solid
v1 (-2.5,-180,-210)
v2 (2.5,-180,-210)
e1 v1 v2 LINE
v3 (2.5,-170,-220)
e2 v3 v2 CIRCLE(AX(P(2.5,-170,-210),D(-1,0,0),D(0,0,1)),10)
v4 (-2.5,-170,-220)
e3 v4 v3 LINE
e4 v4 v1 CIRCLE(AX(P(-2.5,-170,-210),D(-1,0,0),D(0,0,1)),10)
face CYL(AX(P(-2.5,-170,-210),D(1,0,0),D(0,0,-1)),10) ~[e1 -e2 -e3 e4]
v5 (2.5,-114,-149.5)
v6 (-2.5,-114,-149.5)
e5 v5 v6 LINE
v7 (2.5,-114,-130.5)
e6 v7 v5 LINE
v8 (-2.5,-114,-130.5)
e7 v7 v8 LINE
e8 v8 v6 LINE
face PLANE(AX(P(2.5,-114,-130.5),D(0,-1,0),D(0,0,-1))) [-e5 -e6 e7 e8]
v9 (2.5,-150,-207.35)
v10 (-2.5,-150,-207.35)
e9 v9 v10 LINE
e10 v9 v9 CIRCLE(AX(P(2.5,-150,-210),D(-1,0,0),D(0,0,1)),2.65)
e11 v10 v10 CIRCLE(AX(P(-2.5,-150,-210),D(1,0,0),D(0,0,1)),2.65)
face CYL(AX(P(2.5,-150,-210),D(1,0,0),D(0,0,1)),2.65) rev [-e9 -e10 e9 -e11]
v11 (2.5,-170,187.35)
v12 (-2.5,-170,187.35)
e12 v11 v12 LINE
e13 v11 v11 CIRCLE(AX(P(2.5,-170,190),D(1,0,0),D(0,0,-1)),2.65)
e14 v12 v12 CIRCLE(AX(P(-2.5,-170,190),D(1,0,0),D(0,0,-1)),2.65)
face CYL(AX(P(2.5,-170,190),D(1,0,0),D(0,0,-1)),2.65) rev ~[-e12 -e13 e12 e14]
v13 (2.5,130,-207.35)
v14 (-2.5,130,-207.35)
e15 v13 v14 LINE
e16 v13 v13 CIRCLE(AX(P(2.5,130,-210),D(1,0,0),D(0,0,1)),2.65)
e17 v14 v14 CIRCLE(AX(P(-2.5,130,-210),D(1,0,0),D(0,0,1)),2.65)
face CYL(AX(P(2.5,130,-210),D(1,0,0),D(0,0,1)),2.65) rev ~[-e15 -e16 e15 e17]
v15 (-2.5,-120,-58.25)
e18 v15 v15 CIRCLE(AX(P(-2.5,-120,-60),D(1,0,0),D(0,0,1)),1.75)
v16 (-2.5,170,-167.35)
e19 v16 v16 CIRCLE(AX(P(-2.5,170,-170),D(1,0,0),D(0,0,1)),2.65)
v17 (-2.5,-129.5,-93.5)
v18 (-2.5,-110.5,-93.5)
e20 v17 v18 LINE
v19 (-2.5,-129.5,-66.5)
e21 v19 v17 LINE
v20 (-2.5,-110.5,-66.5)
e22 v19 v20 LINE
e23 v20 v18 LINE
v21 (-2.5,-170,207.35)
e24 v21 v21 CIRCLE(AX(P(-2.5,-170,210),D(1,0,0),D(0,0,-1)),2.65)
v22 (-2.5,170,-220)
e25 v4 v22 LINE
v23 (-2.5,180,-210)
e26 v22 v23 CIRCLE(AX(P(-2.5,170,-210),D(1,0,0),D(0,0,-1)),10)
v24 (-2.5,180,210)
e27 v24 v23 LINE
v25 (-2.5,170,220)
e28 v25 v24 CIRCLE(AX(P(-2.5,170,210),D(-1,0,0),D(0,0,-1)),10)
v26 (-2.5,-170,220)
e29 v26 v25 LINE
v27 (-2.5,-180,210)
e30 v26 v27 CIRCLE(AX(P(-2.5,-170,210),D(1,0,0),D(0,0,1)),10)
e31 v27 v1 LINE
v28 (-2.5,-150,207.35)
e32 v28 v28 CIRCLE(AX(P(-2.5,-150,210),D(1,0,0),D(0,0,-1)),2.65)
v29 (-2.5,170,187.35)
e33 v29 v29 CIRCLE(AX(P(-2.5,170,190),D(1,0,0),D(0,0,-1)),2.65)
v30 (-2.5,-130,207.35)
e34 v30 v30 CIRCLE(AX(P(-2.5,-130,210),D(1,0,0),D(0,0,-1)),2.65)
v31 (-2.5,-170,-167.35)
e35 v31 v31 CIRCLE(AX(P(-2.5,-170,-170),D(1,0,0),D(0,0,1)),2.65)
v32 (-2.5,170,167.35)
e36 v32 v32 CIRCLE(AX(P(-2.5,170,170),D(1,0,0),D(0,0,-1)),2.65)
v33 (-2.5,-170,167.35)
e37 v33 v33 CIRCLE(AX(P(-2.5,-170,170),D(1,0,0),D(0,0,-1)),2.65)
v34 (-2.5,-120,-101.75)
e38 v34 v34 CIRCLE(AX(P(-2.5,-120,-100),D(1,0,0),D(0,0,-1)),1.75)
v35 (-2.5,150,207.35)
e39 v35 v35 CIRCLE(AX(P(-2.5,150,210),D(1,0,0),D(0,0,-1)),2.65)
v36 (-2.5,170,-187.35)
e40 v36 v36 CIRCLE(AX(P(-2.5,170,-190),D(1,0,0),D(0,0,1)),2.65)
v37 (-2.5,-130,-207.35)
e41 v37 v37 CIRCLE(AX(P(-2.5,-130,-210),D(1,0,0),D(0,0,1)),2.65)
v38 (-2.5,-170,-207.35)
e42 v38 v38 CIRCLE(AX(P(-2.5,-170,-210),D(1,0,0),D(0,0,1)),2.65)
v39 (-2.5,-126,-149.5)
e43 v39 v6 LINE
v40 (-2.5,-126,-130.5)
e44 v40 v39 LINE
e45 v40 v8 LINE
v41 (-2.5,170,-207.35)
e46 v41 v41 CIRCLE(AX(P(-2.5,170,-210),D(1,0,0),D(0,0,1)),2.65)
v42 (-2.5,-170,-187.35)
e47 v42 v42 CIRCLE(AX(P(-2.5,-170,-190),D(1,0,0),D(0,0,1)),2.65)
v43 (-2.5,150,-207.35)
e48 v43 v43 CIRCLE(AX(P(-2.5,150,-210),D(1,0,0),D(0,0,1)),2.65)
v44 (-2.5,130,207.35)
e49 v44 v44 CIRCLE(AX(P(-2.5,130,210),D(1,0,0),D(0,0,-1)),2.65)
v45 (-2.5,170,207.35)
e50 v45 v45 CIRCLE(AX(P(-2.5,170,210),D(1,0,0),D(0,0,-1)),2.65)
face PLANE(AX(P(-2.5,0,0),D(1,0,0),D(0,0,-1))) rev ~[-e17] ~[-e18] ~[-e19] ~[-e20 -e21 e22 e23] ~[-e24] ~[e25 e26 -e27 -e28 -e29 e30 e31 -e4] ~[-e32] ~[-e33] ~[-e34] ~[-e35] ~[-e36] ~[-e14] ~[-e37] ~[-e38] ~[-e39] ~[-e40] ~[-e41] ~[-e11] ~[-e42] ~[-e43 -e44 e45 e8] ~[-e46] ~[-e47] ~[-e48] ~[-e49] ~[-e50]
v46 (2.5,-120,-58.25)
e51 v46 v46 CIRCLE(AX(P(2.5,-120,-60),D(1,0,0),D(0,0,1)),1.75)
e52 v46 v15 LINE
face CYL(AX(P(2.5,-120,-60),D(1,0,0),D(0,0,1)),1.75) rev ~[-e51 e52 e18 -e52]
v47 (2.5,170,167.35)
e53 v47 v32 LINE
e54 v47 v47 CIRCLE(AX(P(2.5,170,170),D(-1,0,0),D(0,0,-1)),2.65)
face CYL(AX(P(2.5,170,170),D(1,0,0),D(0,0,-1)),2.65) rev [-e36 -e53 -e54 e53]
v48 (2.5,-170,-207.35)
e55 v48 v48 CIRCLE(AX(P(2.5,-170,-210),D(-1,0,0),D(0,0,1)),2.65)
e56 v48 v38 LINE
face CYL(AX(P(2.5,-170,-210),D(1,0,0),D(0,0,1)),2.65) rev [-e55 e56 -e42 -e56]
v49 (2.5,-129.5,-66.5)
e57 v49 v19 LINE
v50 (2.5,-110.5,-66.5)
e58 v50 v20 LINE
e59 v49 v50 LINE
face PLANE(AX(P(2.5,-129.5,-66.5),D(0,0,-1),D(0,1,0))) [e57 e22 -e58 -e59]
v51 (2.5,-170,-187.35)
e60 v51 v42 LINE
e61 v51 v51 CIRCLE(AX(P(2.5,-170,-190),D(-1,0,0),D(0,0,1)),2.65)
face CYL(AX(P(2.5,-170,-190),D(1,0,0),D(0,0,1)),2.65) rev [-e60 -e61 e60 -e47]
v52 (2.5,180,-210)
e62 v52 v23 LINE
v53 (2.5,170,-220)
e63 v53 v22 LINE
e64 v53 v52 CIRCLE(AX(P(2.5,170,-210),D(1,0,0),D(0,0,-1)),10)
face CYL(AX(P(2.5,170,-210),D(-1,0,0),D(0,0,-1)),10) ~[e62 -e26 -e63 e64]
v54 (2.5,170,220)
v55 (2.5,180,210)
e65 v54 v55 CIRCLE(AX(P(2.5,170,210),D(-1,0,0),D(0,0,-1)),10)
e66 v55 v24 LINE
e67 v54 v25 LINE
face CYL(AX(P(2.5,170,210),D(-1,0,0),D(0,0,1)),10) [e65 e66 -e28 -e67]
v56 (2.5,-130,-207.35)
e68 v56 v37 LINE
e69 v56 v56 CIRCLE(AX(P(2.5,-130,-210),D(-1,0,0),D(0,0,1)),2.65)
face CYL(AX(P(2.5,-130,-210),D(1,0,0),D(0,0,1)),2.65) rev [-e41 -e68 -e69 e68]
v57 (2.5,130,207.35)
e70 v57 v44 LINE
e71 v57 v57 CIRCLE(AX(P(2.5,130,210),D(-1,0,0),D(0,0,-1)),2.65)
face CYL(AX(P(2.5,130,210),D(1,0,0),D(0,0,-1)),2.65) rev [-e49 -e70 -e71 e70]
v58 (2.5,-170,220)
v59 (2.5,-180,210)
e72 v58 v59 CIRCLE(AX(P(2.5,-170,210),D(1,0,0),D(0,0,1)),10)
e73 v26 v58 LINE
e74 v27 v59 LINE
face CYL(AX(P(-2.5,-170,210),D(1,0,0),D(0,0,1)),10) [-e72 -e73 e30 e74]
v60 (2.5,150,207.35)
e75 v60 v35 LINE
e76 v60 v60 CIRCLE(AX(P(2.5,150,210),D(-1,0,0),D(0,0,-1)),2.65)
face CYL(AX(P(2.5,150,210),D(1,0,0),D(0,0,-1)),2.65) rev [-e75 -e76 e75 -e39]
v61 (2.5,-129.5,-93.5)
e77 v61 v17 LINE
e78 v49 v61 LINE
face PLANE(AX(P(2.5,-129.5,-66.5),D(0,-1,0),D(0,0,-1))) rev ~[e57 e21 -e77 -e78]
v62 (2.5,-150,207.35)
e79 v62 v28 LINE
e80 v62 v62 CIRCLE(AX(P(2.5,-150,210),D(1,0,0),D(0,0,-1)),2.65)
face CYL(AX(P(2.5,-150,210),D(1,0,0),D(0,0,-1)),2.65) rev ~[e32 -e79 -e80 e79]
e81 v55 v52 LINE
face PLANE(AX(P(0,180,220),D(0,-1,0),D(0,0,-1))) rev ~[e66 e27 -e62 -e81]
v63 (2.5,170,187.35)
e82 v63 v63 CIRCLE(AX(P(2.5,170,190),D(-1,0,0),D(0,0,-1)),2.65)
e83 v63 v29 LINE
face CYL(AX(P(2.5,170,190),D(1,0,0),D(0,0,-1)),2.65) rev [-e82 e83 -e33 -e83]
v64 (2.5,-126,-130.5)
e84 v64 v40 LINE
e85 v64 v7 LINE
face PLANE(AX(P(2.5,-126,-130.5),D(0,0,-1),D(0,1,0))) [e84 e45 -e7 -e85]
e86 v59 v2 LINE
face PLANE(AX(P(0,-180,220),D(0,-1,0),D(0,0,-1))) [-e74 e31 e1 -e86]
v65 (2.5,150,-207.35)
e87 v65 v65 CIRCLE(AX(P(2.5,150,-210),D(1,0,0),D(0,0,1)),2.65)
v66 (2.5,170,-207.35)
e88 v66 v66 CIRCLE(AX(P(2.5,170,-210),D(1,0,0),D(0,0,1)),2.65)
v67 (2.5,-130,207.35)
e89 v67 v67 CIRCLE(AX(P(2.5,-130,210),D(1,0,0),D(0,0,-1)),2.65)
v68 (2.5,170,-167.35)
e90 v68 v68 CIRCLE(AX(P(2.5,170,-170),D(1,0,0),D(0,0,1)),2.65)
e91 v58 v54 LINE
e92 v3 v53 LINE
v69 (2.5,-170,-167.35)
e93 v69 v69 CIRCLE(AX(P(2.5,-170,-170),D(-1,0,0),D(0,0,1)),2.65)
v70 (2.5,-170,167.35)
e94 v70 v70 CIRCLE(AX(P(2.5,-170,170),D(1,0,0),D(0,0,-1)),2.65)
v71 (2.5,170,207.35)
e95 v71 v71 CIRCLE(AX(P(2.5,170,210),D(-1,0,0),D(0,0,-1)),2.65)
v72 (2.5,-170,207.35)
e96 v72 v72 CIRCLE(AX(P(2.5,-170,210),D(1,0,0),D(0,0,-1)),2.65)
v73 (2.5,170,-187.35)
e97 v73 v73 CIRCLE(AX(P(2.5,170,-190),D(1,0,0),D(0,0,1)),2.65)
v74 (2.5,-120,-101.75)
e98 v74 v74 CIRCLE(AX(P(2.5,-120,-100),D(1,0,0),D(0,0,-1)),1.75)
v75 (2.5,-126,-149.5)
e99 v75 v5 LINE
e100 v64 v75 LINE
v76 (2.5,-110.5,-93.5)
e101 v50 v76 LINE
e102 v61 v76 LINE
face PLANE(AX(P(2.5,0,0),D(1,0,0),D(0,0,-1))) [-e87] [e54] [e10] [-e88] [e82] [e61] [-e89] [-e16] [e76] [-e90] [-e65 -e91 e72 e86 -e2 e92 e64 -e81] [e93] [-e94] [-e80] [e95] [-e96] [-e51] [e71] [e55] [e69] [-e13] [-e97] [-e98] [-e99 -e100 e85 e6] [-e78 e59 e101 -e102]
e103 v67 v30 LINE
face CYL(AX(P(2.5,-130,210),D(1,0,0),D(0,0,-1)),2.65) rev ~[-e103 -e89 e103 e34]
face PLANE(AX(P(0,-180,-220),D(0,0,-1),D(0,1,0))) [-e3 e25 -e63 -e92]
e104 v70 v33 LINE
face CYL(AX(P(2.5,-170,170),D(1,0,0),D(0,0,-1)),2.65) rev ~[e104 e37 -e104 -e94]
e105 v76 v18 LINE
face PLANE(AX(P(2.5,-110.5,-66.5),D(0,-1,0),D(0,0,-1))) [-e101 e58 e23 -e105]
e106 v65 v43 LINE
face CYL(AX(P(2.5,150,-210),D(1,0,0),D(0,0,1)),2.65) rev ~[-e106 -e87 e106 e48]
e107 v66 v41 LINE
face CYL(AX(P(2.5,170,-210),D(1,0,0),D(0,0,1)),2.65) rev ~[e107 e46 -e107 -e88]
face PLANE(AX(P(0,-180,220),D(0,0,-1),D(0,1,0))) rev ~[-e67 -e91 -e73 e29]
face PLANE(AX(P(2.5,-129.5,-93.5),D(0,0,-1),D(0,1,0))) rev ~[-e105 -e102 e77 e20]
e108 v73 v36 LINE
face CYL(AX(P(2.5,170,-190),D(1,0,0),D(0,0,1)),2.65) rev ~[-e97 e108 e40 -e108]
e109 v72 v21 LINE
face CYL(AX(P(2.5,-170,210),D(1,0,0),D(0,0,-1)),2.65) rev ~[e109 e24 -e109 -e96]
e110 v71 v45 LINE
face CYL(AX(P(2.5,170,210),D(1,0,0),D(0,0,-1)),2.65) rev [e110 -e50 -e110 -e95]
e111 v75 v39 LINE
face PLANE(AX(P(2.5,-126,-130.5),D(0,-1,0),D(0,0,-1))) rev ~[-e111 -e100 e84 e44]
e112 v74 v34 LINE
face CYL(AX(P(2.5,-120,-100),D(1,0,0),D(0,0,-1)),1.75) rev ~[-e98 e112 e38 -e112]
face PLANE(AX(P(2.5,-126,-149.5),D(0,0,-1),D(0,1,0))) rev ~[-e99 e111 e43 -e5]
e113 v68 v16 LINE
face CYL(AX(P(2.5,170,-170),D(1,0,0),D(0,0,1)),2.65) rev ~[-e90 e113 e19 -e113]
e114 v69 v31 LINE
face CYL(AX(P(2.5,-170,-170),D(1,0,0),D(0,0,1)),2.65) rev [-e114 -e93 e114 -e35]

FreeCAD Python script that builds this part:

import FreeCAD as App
import Part
import Sketcher
Q = App.Units.Quantity


def edges_at(feature, points):
    """Names of the edges that pass closest to the given points."""
    edges = feature.Shape.Edges
    near = lambda p: min(range(len(edges)), key=lambda i: edges[i].distToShape(Part.Vertex(*p))[0])
    return sorted({f"Edge{near(p) + 1}" for p in points})


def add_polygon(sketch, points):
    """Adds a closed chain of lines whose ends are joined by coincident constraints."""
    first, n = sketch.GeometryCount, len(points)
    for a, b in zip(points, points[1:] + points[:1]):
        sketch.addGeometry(Part.LineSegment(App.Vector(*a, 0), App.Vector(*b, 0)), False)
    for i in range(n):
        sketch.addConstraint(Sketcher.Constraint("Coincident", first + i, 2, first + (i + 1) % n, 1))

doc = App.newDocument("Part")
body = doc.addObject("PartDesign::Body", "Body")

sketch1 = doc.addObject("Sketcher::SketchObject", "Sketch")
body.addObject(sketch1)
sketch1.AttachmentSupport = (doc.YZ_Plane, [""])
sketch1.MapMode = "FlatFace"
add_polygon(sketch1, [(180, 220), (-180, 220), (-180, -220), (180, -220)])
sketch1.addConstraint([
    Sketcher.Constraint("Horizontal", 0),
    Sketcher.Constraint("Vertical", 1),
    Sketcher.Constraint("Horizontal", 2),
    Sketcher.Constraint("Vertical", 3),
    Sketcher.Constraint("Symmetric", 0, 2, 2, 2, -1, 1),
    Sketcher.Constraint("DistanceX", 0, 2, 0, 1, Q("360 mm")),
    Sketcher.Constraint("DistanceY", 1, 2, 1, 1, Q("440 mm")),
])
pad1 = doc.addObject("PartDesign::Pad", "Pad")
body.addObject(pad1)
pad1.Profile = sketch1
pad1.Length = 5
pad1.Midplane = True
doc.recompute()

fillet = doc.addObject("PartDesign::Fillet", "Fillet")
body.addObject(fillet)
fillet.Base = (pad1, edges_at(pad1, [
    (0, -180, -220),
    (0, -180, 220),
    (0, 180, 220),
    (0, 180, -220),
]))
fillet.Radius = 10

sketch2 = doc.addObject("Sketcher::SketchObject", "Sketch001")
body.addObject(sketch2)
sketch2.AttachmentSupport = (doc.YZ_Plane, [""])
sketch2.MapMode = "FlatFace"
sketch2.AttachmentOffset = App.Placement(App.Vector(0, 0, 2.5), App.Rotation())
sketch2.addGeometry([
    Part.Circle(App.Vector(-170, 210, 0), App.Vector(0, 0, 1), 2.6),
    Part.Circle(App.Vector(-170, 190, 0), App.Vector(0, 0, 1), 2.6),
    Part.Circle(App.Vector(-170, 170, 0), App.Vector(0, 0, 1), 2.6),
    Part.Circle(App.Vector(-150, 210, 0), App.Vector(0, 0, 1), 2.6),
    Part.Circle(App.Vector(-130, 210, 0), App.Vector(0, 0, 1), 2.6),
], False)
sketch2.addConstraint([
    Sketcher.Constraint("Equal", 0, 1),
    Sketcher.Constraint("Equal", 1, 2),
    Sketcher.Constraint("Equal", 2, 3),
    Sketcher.Constraint("Equal", 3, 4),
    Sketcher.Constraint("Horizontal", 0, 3, 3, 3),
    Sketcher.Constraint("Horizontal", 3, 3, 4, 3),
    Sketcher.Constraint("Vertical", 0, 3, 1, 3),
    Sketcher.Constraint("Vertical", 1, 3, 2, 3),
    Sketcher.Constraint("Diameter", 0, Q("5.3 mm")),
    Sketcher.Constraint("DistanceX", 0, 3, -1, 1, Q("170 mm")),
    Sketcher.Constraint("DistanceY", -1, 1, 0, 3, Q("210 mm")),
    Sketcher.Constraint("DistanceY", -1, 1, 1, 3, Q("190 mm")),
    Sketcher.Constraint("DistanceY", -1, 1, 2, 3, Q("170 mm")),
    Sketcher.Constraint("DistanceX", 3, 3, -1, 1, Q("150 mm")),
    Sketcher.Constraint("DistanceX", 4, 3, -1, 1, Q("130 mm")),
])
pocket1 = doc.addObject("PartDesign::Pocket", "Pocket")
body.addObject(pocket1)
pocket1.Profile = sketch2
pocket1.Type = "ThroughAll"
doc.recompute()

mirrored = doc.addObject("PartDesign::Mirrored", "Mirrored")
body.addObject(mirrored)
mirrored.Originals = [pocket1]
mirrored.MirrorPlane = (doc.XY_Plane, [""])
body.Tip = mirrored
doc.recompute()

mirrored2 = doc.addObject("PartDesign::Mirrored", "Mirrored001")
body.addObject(mirrored2)
mirrored2.Originals = [pocket1]
mirrored2.MirrorPlane = (doc.XZ_Plane, [""])
body.Tip = mirrored2

sketch3 = doc.addObject("Sketcher::SketchObject", "Sketch002")
body.addObject(sketch3)
sketch3.AttachmentSupport = (doc.YZ_Plane, [""])
sketch3.MapMode = "FlatFace"
sketch3.AttachmentOffset = App.Placement(App.Vector(0, 0, 2.5), App.Rotation())
sketch3.addGeometry([
    Part.Circle(App.Vector(170, -210, 0), App.Vector(0, 0, 1), 2.6),
    Part.Circle(App.Vector(170, -190, 0), App.Vector(0, 0, 1), 2.6),
    Part.Circle(App.Vector(170, -170, 0), App.Vector(0, 0, 1), 2.6),
    Part.Circle(App.Vector(150, -210, 0), App.Vector(0, 0, 1), 2.6),
    Part.Circle(App.Vector(130, -210, 0), App.Vector(0, 0, 1), 2.6),
], False)
sketch3.addConstraint([
    Sketcher.Constraint("Equal", 0, 1),
    Sketcher.Constraint("Equal", 1, 2),
    Sketcher.Constraint("Equal", 2, 3),
    Sketcher.Constraint("Equal", 3, 4),
    Sketcher.Constraint("Horizontal", 0, 3, 3, 3),
    Sketcher.Constraint("Horizontal", 3, 3, 4, 3),
    Sketcher.Constraint("Vertical", 0, 3, 1, 3),
    Sketcher.Constraint("Vertical", 1, 3, 2, 3),
    Sketcher.Constraint("Diameter", 0, Q("5.3 mm")),
    Sketcher.Constraint("DistanceX", -1, 1, 0, 3, Q("170 mm")),
    Sketcher.Constraint("DistanceY", 0, 3, -1, 1, Q("210 mm")),
    Sketcher.Constraint("DistanceY", 1, 3, -1, 1, Q("190 mm")),
    Sketcher.Constraint("DistanceY", 2, 3, -1, 1, Q("170 mm")),
    Sketcher.Constraint("DistanceX", -1, 1, 3, 3, Q("150 mm")),
    Sketcher.Constraint("DistanceX", -1, 1, 4, 3, Q("130 mm")),
])
pocket2 = doc.addObject("PartDesign::Pocket", "Pocket001")
body.addObject(pocket2)
pocket2.Profile = sketch3
pocket2.Type = "ThroughAll"

sketch4 = doc.addObject("Sketcher::SketchObject", "Sketch003")
body.addObject(sketch4)
sketch4.AttachmentSupport = (doc.YZ_Plane, [""])
sketch4.MapMode = "FlatFace"
sketch4.AttachmentOffset = App.Placement(App.Vector(0, 0, 2.5), App.Rotation())
sketch4.addGeometry(Part.Circle(App.Vector(-120, -100, 0), App.Vector(0, 0, 1), 1.8), False)
sketch4.addGeometry(Part.Circle(App.Vector(-120, -60, 0), App.Vector(0, 0, 1), 1.8), False)
add_polygon(sketch4, [(-110.5, -66.5), (-129.5, -66.5), (-129.5, -93.5), (-110.5, -93.5)])
add_polygon(sketch4, [(-114, -130.5), (-126, -130.5), (-126, -149.5), (-114, -149.5)])
sketch4.addConstraint([
    Sketcher.Constraint("Horizontal", 2),
    Sketcher.Constraint("Vertical", 3),
    Sketcher.Constraint("Horizontal", 4),
    Sketcher.Constraint("Vertical", 5),
    Sketcher.Constraint("Horizontal", 6),
    Sketcher.Constraint("Vertical", 7),
    Sketcher.Constraint("Horizontal", 8),
    Sketcher.Constraint("Vertical", 9),
    Sketcher.Constraint("Equal", 0, 1),
    Sketcher.Constraint("Vertical", 0, 3, 1, 3),
    Sketcher.Constraint("Equal", 4, 7),
    Sketcher.Constraint("Diameter", 0, Q("3.5 mm")),
    Sketcher.Constraint("DistanceX", 2, 2, 2, 1, Q("19 mm")),
    Sketcher.Constraint("DistanceX", 6, 2, 6, 1, Q("12 mm")),
    Sketcher.Constraint("DistanceY", 3, 2, 3, 1, Q("27 mm")),
    Sketcher.Constraint("DistanceX", 0, 3, -1, 1, Q("120 mm")),
    Sketcher.Constraint("DistanceY", 0, 3, -1, 1, Q("100 mm")),
    Sketcher.Constraint("DistanceY", 1, 3, -1, 1, Q("60 mm")),
    Sketcher.Constraint("DistanceX", 6, 2, -1, 1, Q("126 mm")),
    Sketcher.Constraint("DistanceY", 6, 2, 3, 2, Q("37 mm")),
    Sketcher.Constraint("DistanceX", 2, 2, -1, 1, Q("129.5 mm")),
    Sketcher.Constraint("DistanceY", 2, 2, -1, 1, Q("66.5 mm")),
])
pocket3 = doc.addObject("PartDesign::Pocket", "Pocket002")
body.addObject(pocket3)
pocket3.Profile = sketch4
pocket3.Type = "ThroughAll"

doc.recompute()
